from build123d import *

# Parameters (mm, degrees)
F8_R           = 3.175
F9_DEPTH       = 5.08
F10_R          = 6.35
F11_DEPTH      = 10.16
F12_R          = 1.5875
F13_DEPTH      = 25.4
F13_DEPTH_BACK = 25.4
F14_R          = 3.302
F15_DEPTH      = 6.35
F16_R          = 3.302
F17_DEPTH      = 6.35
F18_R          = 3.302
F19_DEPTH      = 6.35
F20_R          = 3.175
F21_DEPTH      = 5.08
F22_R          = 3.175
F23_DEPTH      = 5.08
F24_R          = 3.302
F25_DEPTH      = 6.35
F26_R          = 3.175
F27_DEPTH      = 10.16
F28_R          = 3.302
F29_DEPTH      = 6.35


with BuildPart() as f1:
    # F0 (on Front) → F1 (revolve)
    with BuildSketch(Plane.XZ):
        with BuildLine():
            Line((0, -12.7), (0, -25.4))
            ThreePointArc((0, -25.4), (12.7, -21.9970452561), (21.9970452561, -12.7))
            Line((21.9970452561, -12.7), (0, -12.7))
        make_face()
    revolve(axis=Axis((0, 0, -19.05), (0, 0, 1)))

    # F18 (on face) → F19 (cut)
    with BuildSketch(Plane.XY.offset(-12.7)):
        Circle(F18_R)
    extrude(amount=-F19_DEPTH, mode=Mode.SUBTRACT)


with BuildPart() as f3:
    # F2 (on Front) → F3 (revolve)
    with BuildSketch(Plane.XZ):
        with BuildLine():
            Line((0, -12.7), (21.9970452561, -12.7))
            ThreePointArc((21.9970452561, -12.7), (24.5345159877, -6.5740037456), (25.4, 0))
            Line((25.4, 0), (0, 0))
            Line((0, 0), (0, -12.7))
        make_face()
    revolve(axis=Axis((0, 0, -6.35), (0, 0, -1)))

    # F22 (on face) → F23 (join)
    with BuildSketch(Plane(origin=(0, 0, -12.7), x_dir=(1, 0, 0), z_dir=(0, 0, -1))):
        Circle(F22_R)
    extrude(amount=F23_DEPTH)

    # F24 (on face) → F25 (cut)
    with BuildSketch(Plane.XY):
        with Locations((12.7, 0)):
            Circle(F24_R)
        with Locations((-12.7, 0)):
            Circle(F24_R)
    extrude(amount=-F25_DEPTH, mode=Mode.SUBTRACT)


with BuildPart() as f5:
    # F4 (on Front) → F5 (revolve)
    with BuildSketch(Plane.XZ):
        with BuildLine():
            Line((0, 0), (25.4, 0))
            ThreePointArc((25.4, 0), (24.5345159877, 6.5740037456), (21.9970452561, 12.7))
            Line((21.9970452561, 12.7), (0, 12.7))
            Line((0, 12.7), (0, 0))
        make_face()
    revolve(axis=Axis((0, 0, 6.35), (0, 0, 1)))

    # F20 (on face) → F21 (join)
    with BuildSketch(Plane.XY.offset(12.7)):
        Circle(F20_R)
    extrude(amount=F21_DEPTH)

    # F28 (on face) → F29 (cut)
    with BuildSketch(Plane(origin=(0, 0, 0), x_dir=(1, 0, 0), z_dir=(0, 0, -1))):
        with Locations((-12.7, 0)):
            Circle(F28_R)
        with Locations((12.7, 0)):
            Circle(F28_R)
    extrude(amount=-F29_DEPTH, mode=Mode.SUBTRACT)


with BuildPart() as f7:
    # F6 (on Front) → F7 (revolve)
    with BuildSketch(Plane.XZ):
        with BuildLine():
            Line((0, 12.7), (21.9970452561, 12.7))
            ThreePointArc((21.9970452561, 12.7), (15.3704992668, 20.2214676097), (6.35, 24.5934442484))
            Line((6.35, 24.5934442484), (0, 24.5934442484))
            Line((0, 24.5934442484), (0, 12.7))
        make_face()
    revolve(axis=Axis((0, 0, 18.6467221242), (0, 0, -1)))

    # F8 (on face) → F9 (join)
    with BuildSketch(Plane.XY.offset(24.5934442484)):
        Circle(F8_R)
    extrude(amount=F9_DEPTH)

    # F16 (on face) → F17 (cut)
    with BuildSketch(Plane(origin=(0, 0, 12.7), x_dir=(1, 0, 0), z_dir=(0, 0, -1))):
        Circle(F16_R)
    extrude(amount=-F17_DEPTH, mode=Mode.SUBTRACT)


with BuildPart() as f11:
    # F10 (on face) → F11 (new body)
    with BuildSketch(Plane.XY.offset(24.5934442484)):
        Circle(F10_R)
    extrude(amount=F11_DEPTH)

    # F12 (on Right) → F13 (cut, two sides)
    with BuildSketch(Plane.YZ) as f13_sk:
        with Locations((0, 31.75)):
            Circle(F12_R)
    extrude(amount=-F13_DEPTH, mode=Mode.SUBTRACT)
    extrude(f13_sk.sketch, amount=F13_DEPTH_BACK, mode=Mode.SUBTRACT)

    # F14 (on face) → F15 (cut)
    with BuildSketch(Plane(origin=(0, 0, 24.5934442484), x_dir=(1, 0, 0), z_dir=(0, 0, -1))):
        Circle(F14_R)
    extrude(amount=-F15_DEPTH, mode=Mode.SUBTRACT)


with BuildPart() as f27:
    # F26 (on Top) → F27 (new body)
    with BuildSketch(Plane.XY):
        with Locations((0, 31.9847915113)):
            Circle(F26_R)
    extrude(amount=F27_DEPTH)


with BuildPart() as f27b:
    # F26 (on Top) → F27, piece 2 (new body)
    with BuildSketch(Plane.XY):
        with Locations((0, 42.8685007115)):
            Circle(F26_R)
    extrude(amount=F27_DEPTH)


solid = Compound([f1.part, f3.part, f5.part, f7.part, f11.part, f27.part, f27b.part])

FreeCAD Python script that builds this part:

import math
import FreeCAD as App
import Part
import Sketcher
Q = App.Units.Quantity

doc = App.newDocument("Part")
params = doc.addObject("Spreadsheet::Sheet", "Params")
for row, (alias, value) in enumerate([
    ("sketch1_radius", "1 in"),
    ("sketch1_height", "0.5 in"),
    ("revolution_angle", "360 deg"),
    ("sketch2_diameter", "0.26 in"),
    ("pocket1_length", "0.25 in"),
    ("sketch3_radius", "1 in"),
    ("sketch3_height", "0.5 in"),
    ("revolution2_angle", "360 deg"),
    ("sketch4_diameter", "0.25 in"),
    ("pad1_length", "0.2 in"),
    ("sketch5_diameter", "0.26 in"),
    ("pocket2_length", "0.25 in"),
    ("sketch6_radius", "1 in"),
    ("sketch6_height", "0.5 in"),
    ("revolution3_angle", "360 deg"),
    ("sketch7_diameter", "0.25 in"),
    ("pad2_length", "0.2 in"),
    ("sketch8_diameter", "0.26 in"),
    ("pocket3_length", "0.25 in"),
    ("sketch9_radius", "1 in"),
    ("sketch9_width", "0.25 in"),
    ("revolution4_angle", "360 deg"),
    ("sketch10_diameter", "0.25 in"),
    ("pad3_length", "0.2 in"),
    ("sketch11_diameter", "0.26 in"),
    ("pocket4_length", "0.25 in"),
    ("sketch12_diameter", "0.5 in"),
    ("pad4_length", "0.4 in"),
    ("sketch13_diameter", "0.125 in"),
    ("sketch14_diameter", "0.26 in"),
    ("pocket6_length", "0.25 in"),
    ("sketch15_diameter", "0.25 in"),
    ("pad5_length", "0.4 in"),
    ("sketch16_diameter", "0.25 in"),
    ("pad6_length", "0.4 in"),
], start=1):
    params.set(f"A{row}", alias)
    params.set(f"B{row}", "=" + value)
    params.setAlias(f"B{row}", alias)

body = doc.addObject("PartDesign::Body", "Body")

# Sketch on XZ plane
sketch1 = doc.addObject("Sketcher::SketchObject", "Sketch")
body.addObject(sketch1)
sketch1.AttachmentSupport = (doc.XZ_Plane, [""])
sketch1.MapMode = "FlatFace"
sketch1.addGeometry([
    Part.LineSegment(App.Vector(0, -13, 0), App.Vector(0, -25, 0)),
    Part.ArcOfCircle(Part.Circle(App.Vector(0, 0, 0), App.Vector(0, 0, 1), 25), math.radians(-90), math.radians(-30)),
    Part.LineSegment(App.Vector(22, -13, 0), App.Vector(0, -13, 0)),
], False)
sketch1.addConstraint([
    Sketcher.Constraint("Coincident", 0, 2, 1, 1),
    Sketcher.Constraint("Coincident", 1, 2, 2, 1),
    Sketcher.Constraint("Coincident", 2, 2, 0, 1),
    Sketcher.Constraint("Vertical", 0),
    Sketcher.Constraint("Horizontal", 2),
    Sketcher.Constraint("Coincident", 1, 3, -1, 1),
    Sketcher.Constraint("PointOnObject", 0, 2, -2),
    Sketcher.Constraint("Radius", 1, Q("1 in")),
    Sketcher.Constraint("DistanceY", 0, 2, 0, 1, Q("0.5 in")),
])
sketch1.setExpression("Constraints[7]", "Params.sketch1_radius")
sketch1.setExpression("Constraints[8]", "Params.sketch1_height")
revolution = doc.addObject("PartDesign::Revolution", "Revolution")
body.addObject(revolution)
revolution.Profile = sketch1
revolution.ReferenceAxis = (sketch1, ["V_Axis"])
revolution.setExpression("Angle", "Params.revolution_angle")

# Sketch on XY plane
sketch2 = doc.addObject("Sketcher::SketchObject", "Sketch001")
body.addObject(sketch2)
sketch2.AttachmentSupport = (doc.XY_Plane, [""])
sketch2.MapMode = "FlatFace"
sketch2.AttachmentOffset = App.Placement(App.Vector(0, 0, -0.5 * 25.4), App.Rotation())
sketch2.addGeometry(Part.Circle(App.Vector(0, 0, 0), App.Vector(0, 0, 1), 3.3), False)
sketch2.addConstraint([
    Sketcher.Constraint("Coincident", 0, 3, -1, 1),
    Sketcher.Constraint("Diameter", 0, Q("0.26 in")),
])
sketch2.setExpression("Constraints[1]", "Params.sketch2_diameter")
pocket1 = doc.addObject("PartDesign::Pocket", "Pocket")
body.addObject(pocket1)
pocket1.Profile = sketch2
pocket1.setExpression("Length", "Params.pocket1_length")
body2 = doc.addObject("PartDesign::Body", "Body001")

# Sketch on XZ plane
sketch3 = doc.addObject("Sketcher::SketchObject", "Sketch002")
body2.addObject(sketch3)
sketch3.AttachmentSupport = (doc.getObject("XZ_Plane001"), [""])
sketch3.MapMode = "FlatFace"
sketch3.addGeometry([
    Part.LineSegment(App.Vector(0, -13, 0), App.Vector(22, -13, 0)),
    Part.ArcOfCircle(Part.Circle(App.Vector(0, 0, 0), App.Vector(0, 0, 1), 25), math.radians(-30), math.radians(0)),
    Part.LineSegment(App.Vector(25, 0, 0), App.Vector(0, 0, 0)),
    Part.LineSegment(App.Vector(0, 0, 0), App.Vector(0, -13, 0)),
], False)
sketch3.addConstraint([
    Sketcher.Constraint("Coincident", 0, 2, 1, 1),
    Sketcher.Constraint("Coincident", 1, 2, 2, 1),
    Sketcher.Constraint("Coincident", 2, 2, 3, 1),
    Sketcher.Constraint("Coincident", 3, 2, 0, 1),
    Sketcher.Constraint("Horizontal", 0),
    Sketcher.Constraint("Horizontal", 2),
    Sketcher.Constraint("Vertical", 3),
    Sketcher.Constraint("Coincident", 1, 3, -1, 1),
    Sketcher.Constraint("Coincident", 2, 2, -1, 1),
    Sketcher.Constraint("Radius", 1, Q("1 in")),
    Sketcher.Constraint("DistanceY", 3, 2, 3, 1, Q("0.5 in")),
])
sketch3.setExpression("Constraints[9]", "Params.sketch3_radius")
sketch3.setExpression("Constraints[10]", "Params.sketch3_height")
revolution2 = doc.addObject("PartDesign::Revolution", "Revolution001")
body2.addObject(revolution2)
revolution2.Profile = sketch3
revolution2.ReferenceAxis = (sketch3, ["V_Axis"])
revolution2.setExpression("Angle", "Params.revolution2_angle")

# Sketch on XY plane
sketch4 = doc.addObject("Sketcher::SketchObject", "Sketch003")
body2.addObject(sketch4)
sketch4.AttachmentSupport = (doc.getObject("XY_Plane001"), [""])
sketch4.MapMode = "FlatFace"
sketch4.AttachmentOffset = App.Placement(App.Vector(0, 0, -0.5 * 25.4), App.Rotation())
sketch4.addGeometry(Part.Circle(App.Vector(0, 0, 0), App.Vector(0, 0, 1), 3.2), False)
sketch4.addConstraint([
    Sketcher.Constraint("Coincident", 0, 3, -1, 1),
    Sketcher.Constraint("Diameter", 0, Q("0.25 in")),
])
sketch4.setExpression("Constraints[1]", "Params.sketch4_diameter")
pad1 = doc.addObject("PartDesign::Pad", "Pad")
body2.addObject(pad1)
pad1.Profile = sketch4
pad1.setExpression("Length", "Params.pad1_length")
pad1.Reversed = True

# Sketch on XY plane
sketch5 = doc.addObject("Sketcher::SketchObject", "Sketch004")
body2.addObject(sketch5)
sketch5.AttachmentSupport = (doc.getObject("XY_Plane001"), [""])
sketch5.MapMode = "FlatFace"
sketch5.addGeometry([
    Part.Circle(App.Vector(12.7, 0, 0), App.Vector(0, 0, 1), 3.3),
    Part.Circle(App.Vector(-12.7, 0, 0), App.Vector(0, 0, 1), 3.3),
], False)
sketch5.addConstraint([
    Sketcher.Constraint("Equal", 0, 1),
    Sketcher.Constraint("Symmetric", 0, 3, 1, 3, -1, 1),
    Sketcher.Constraint("PointOnObject", 0, 3, -1),
    Sketcher.Constraint("Diameter", 0, Q("0.26 in")),
    Sketcher.Constraint("DistanceX", 1, 3, 0, 3, Q("1 in")),
])
sketch5.setExpression("Constraints[3]", "Params.sketch5_diameter")
pocket2 = doc.addObject("PartDesign::Pocket", "Pocket001")
body2.addObject(pocket2)
pocket2.Profile = sketch5
pocket2.setExpression("Length", "Params.pocket2_length")
body3 = doc.addObject("PartDesign::Body", "Body002")

# Sketch on XZ plane
sketch6 = doc.addObject("Sketcher::SketchObject", "Sketch005")
body3.addObject(sketch6)
sketch6.AttachmentSupport = (doc.getObject("XZ_Plane002"), [""])
sketch6.MapMode = "FlatFace"
sketch6.addGeometry([
    Part.LineSegment(App.Vector(0, 0, 0), App.Vector(25, 0, 0)),
    Part.ArcOfCircle(Part.Circle(App.Vector(0, 0, 0), App.Vector(0, 0, 1), 25), math.radians(0), math.radians(30)),
    Part.LineSegment(App.Vector(22, 13, 0), App.Vector(0, 13, 0)),
    Part.LineSegment(App.Vector(0, 13, 0), App.Vector(0, 0, 0)),
], False)
sketch6.addConstraint([
    Sketcher.Constraint("Coincident", 0, 2, 1, 1),
    Sketcher.Constraint("Coincident", 1, 2, 2, 1),
    Sketcher.Constraint("Coincident", 2, 2, 3, 1),
    Sketcher.Constraint("Coincident", 3, 2, 0, 1),
    Sketcher.Constraint("Horizontal", 0),
    Sketcher.Constraint("Horizontal", 2),
    Sketcher.Constraint("Vertical", 3),
    Sketcher.Constraint("Coincident", 1, 3, -1, 1),
    Sketcher.Constraint("Coincident", 3, 2, -1, 1),
    Sketcher.Constraint("Radius", 1, Q("1 in")),
    Sketcher.Constraint("DistanceY", 3, 2, 3, 1, Q("0.5 in")),
])
sketch6.setExpression("Constraints[9]", "Params.sketch6_radius")
sketch6.setExpression("Constraints[10]", "Params.sketch6_height")
revolution3 = doc.addObject("PartDesign::Revolution", "Revolution002")
body3.addObject(revolution3)
revolution3.Profile = sketch6
revolution3.ReferenceAxis = (sketch6, ["V_Axis"])
revolution3.setExpression("Angle", "Params.revolution3_angle")

# Sketch on XY plane
sketch7 = doc.addObject("Sketcher::SketchObject", "Sketch006")
body3.addObject(sketch7)
sketch7.AttachmentSupport = (doc.getObject("XY_Plane002"), [""])
sketch7.MapMode = "FlatFace"
sketch7.AttachmentOffset = App.Placement(App.Vector(0, 0, 0.5 * 25.4), App.Rotation())
sketch7.addGeometry(Part.Circle(App.Vector(0, 0, 0), App.Vector(0, 0, 1), 3.2), False)
sketch7.addConstraint([
    Sketcher.Constraint("Coincident", 0, 3, -1, 1),
    Sketcher.Constraint("Diameter", 0, Q("0.25 in")),
])
sketch7.setExpression("Constraints[1]", "Params.sketch7_diameter")
pad2 = doc.addObject("PartDesign::Pad", "Pad001")
body3.addObject(pad2)
pad2.Profile = sketch7
pad2.setExpression("Length", "Params.pad2_length")

# Sketch on XY plane
sketch8 = doc.addObject("Sketcher::SketchObject", "Sketch007")
body3.addObject(sketch8)
sketch8.AttachmentSupport = (doc.getObject("XY_Plane002"), [""])
sketch8.MapMode = "FlatFace"
sketch8.addGeometry([
    Part.Circle(App.Vector(-12.7, 0, 0), App.Vector(0, 0, 1), 3.3),
    Part.Circle(App.Vector(12.7, 0, 0), App.Vector(0, 0, 1), 3.3),
], False)
sketch8.addConstraint([
    Sketcher.Constraint("Equal", 0, 1),
    Sketcher.Constraint("Symmetric", 0, 3, 1, 3, -1, 1),
    Sketcher.Constraint("PointOnObject", 0, 3, -1),
    Sketcher.Constraint("Diameter", 0, Q("0.26 in")),
    Sketcher.Constraint("DistanceX", 0, 3, 1, 3, Q("1 in")),
])
sketch8.setExpression("Constraints[3]", "Params.sketch8_diameter")
pocket3 = doc.addObject("PartDesign::Pocket", "Pocket002")
body3.addObject(pocket3)
pocket3.Profile = sketch8
pocket3.setExpression("Length", "Params.pocket3_length")
pocket3.Reversed = True
body4 = doc.addObject("PartDesign::Body", "Body003")

# Sketch on XZ plane
sketch9 = doc.addObject("Sketcher::SketchObject", "Sketch008")
body4.addObject(sketch9)
sketch9.AttachmentSupport = (doc.getObject("XZ_Plane003"), [""])
sketch9.MapMode = "FlatFace"
sketch9.addGeometry([
    Part.LineSegment(App.Vector(0, 13, 0), App.Vector(22, 13, 0)),
    Part.ArcOfCircle(Part.Circle(App.Vector(0, 0, 0), App.Vector(0, 0, 1), 25), math.radians(30), math.radians(76)),
    Part.LineSegment(App.Vector(6, 25, 0), App.Vector(0, 25, 0)),
    Part.LineSegment(App.Vector(0, 25, 0), App.Vector(0, 13, 0)),
], False)
sketch9.addConstraint([
    Sketcher.Constraint("Coincident", 0, 2, 1, 1),
    Sketcher.Constraint("Coincident", 1, 2, 2, 1),
    Sketcher.Constraint("Coincident", 2, 2, 3, 1),
    Sketcher.Constraint("Coincident", 3, 2, 0, 1),
    Sketcher.Constraint("Horizontal", 0),
    Sketcher.Constraint("Horizontal", 2),
    Sketcher.Constraint("Vertical", 3),
    Sketcher.Constraint("Coincident", 1, 3, -1, 1),
    Sketcher.Constraint("PointOnObject", 2, 2, -2),
    Sketcher.Constraint("Radius", 1, Q("1 in")),
    Sketcher.Constraint("DistanceX", 2, 2, 2, 1, Q("0.25 in")),
    Sketcher.Constraint("DistanceY", -1, 1, 0, 2, Q("0.5 in")),
])
sketch9.setExpression("Constraints[9]", "Params.sketch9_radius")
sketch9.setExpression("Constraints[10]", "Params.sketch9_width")
revolution4 = doc.addObject("PartDesign::Revolution", "Revolution003")
body4.addObject(revolution4)
revolution4.Profile = sketch9
revolution4.ReferenceAxis = (sketch9, ["V_Axis"])
revolution4.setExpression("Angle", "Params.revolution4_angle")

# Sketch on XY plane
sketch10 = doc.addObject("Sketcher::SketchObject", "Sketch009")
body4.addObject(sketch10)
sketch10.AttachmentSupport = (doc.getObject("XY_Plane003"), [""])
sketch10.MapMode = "FlatFace"
sketch10.AttachmentOffset = App.Placement(App.Vector(0, 0, 24.593444), App.Rotation())
sketch10.addGeometry(Part.Circle(App.Vector(0, 0, 0), App.Vector(0, 0, 1), 3.2), False)
sketch10.addConstraint([
    Sketcher.Constraint("Coincident", 0, 3, -1, 1),
    Sketcher.Constraint("Diameter", 0, Q("0.25 in")),
])
sketch10.setExpression("Constraints[1]", "Params.sketch10_diameter")
pad3 = doc.addObject("PartDesign::Pad", "Pad002")
body4.addObject(pad3)
pad3.Profile = sketch10
pad3.setExpression("Length", "Params.pad3_length")

# Sketch on XY plane
sketch11 = doc.addObject("Sketcher::SketchObject", "Sketch010")
body4.addObject(sketch11)
sketch11.AttachmentSupport = (doc.getObject("XY_Plane003"), [""])
sketch11.MapMode = "FlatFace"
sketch11.AttachmentOffset = App.Placement(App.Vector(0, 0, 0.5 * 25.4), App.Rotation())
sketch11.addGeometry(Part.Circle(App.Vector(0, 0, 0), App.Vector(0, 0, 1), 3.3), False)
sketch11.addConstraint([
    Sketcher.Constraint("Coincident", 0, 3, -1, 1),
    Sketcher.Constraint("Diameter", 0, Q("0.26 in")),
])
sketch11.setExpression("Constraints[1]", "Params.sketch11_diameter")
pocket4 = doc.addObject("PartDesign::Pocket", "Pocket003")
body4.addObject(pocket4)
pocket4.Profile = sketch11
pocket4.setExpression("Length", "Params.pocket4_length")
pocket4.Reversed = True
body5 = doc.addObject("PartDesign::Body", "Body004")

# Sketch on XY plane
sketch12 = doc.addObject("Sketcher::SketchObject", "Sketch011")
body5.addObject(sketch12)
sketch12.AttachmentSupport = (doc.getObject("XY_Plane004"), [""])
sketch12.MapMode = "FlatFace"
sketch12.AttachmentOffset = App.Placement(App.Vector(0, 0, 24.593444), App.Rotation())
sketch12.addGeometry(Part.Circle(App.Vector(0, 0, 0), App.Vector(0, 0, 1), 6), False)
sketch12.addConstraint([
    Sketcher.Constraint("Coincident", 0, 3, -1, 1),
    Sketcher.Constraint("Diameter", 0, Q("0.5 in")),
])
sketch12.setExpression("Constraints[1]", "Params.sketch12_diameter")
pad4 = doc.addObject("PartDesign::Pad", "Pad003")
body5.addObject(pad4)
pad4.Profile = sketch12
pad4.setExpression("Length", "Params.pad4_length")

# Sketch on YZ plane
sketch13 = doc.addObject("Sketcher::SketchObject", "Sketch012")
body5.addObject(sketch13)
sketch13.AttachmentSupport = (doc.getObject("YZ_Plane004"), [""])
sketch13.MapMode = "FlatFace"
sketch13.addGeometry(Part.Circle(App.Vector(0, 31.8, 0), App.Vector(0, 0, 1), 1.6), False)
sketch13.addConstraint([
    Sketcher.Constraint("PointOnObject", 0, 3, -2),
    Sketcher.Constraint("Diameter", 0, Q("0.125 in")),
    Sketcher.Constraint("DistanceY", -1, 1, 0, 3, Q("1.25 in")),
])
sketch13.setExpression("Constraints[1]", "Params.sketch13_diameter")
pocket5 = doc.addObject("PartDesign::Pocket", "Pocket004")
body5.addObject(pocket5)
pocket5.Profile = sketch13
pocket5.Type = "ThroughAll"
pocket5.Midplane = True

# Sketch on XY plane
sketch14 = doc.addObject("Sketcher::SketchObject", "Sketch013")
body5.addObject(sketch14)
sketch14.AttachmentSupport = (doc.getObject("XY_Plane004"), [""])
sketch14.MapMode = "FlatFace"
sketch14.AttachmentOffset = App.Placement(App.Vector(0, 0, 24.593444), App.Rotation())
sketch14.addGeometry(Part.Circle(App.Vector(0, 0, 0), App.Vector(0, 0, 1), 3.3), False)
sketch14.addConstraint([
    Sketcher.Constraint("Coincident", 0, 3, -1, 1),
    Sketcher.Constraint("Diameter", 0, Q("0.26 in")),
])
sketch14.setExpression("Constraints[1]", "Params.sketch14_diameter")
pocket6 = doc.addObject("PartDesign::Pocket", "Pocket005")
body5.addObject(pocket6)
pocket6.Profile = sketch14
pocket6.setExpression("Length", "Params.pocket6_length")
pocket6.Reversed = True
body6 = doc.addObject("PartDesign::Body", "Body005")

# Sketch on XY plane
sketch15 = doc.addObject("Sketcher::SketchObject", "Sketch014")
body6.addObject(sketch15)
sketch15.AttachmentSupport = (doc.getObject("XY_Plane005"), [""])
sketch15.MapMode = "FlatFace"
sketch15.addGeometry(Part.Circle(App.Vector(0, 32, 0), App.Vector(0, 0, 1), 3.2), False)
sketch15.addConstraint([
    Sketcher.Constraint("PointOnObject", 0, 3, -2),
    Sketcher.Constraint("Diameter", 0, Q("0.25 in")),
    Sketcher.Constraint("DistanceY", -1, 1, 0, 3, 31.984792),
])
sketch15.setExpression("Constraints[1]", "Params.sketch15_diameter")
pad5 = doc.addObject("PartDesign::Pad", "Pad004")
body6.addObject(pad5)
pad5.Profile = sketch15
pad5.setExpression("Length", "Params.pad5_length")
body7 = doc.addObject("PartDesign::Body", "Body006")

# Sketch on XY plane
sketch16 = doc.addObject("Sketcher::SketchObject", "Sketch015")
body7.addObject(sketch16)
sketch16.AttachmentSupport = (doc.getObject("XY_Plane006"), [""])
sketch16.MapMode = "FlatFace"
sketch16.addGeometry(Part.Circle(App.Vector(0, 42.9, 0), App.Vector(0, 0, 1), 3.2), False)
sketch16.addConstraint([
    Sketcher.Constraint("PointOnObject", 0, 3, -2),
    Sketcher.Constraint("Diameter", 0, Q("0.25 in")),
    Sketcher.Constraint("DistanceY", -1, 1, 0, 3, 42.868501),
])
sketch16.setExpression("Constraints[1]", "Params.sketch16_diameter")
pad6 = doc.addObject("PartDesign::Pad", "Pad005")
body7.addObject(pad6)
pad6.Profile = sketch16
pad6.setExpression("Length", "Params.pad6_length")

doc.recompute()
